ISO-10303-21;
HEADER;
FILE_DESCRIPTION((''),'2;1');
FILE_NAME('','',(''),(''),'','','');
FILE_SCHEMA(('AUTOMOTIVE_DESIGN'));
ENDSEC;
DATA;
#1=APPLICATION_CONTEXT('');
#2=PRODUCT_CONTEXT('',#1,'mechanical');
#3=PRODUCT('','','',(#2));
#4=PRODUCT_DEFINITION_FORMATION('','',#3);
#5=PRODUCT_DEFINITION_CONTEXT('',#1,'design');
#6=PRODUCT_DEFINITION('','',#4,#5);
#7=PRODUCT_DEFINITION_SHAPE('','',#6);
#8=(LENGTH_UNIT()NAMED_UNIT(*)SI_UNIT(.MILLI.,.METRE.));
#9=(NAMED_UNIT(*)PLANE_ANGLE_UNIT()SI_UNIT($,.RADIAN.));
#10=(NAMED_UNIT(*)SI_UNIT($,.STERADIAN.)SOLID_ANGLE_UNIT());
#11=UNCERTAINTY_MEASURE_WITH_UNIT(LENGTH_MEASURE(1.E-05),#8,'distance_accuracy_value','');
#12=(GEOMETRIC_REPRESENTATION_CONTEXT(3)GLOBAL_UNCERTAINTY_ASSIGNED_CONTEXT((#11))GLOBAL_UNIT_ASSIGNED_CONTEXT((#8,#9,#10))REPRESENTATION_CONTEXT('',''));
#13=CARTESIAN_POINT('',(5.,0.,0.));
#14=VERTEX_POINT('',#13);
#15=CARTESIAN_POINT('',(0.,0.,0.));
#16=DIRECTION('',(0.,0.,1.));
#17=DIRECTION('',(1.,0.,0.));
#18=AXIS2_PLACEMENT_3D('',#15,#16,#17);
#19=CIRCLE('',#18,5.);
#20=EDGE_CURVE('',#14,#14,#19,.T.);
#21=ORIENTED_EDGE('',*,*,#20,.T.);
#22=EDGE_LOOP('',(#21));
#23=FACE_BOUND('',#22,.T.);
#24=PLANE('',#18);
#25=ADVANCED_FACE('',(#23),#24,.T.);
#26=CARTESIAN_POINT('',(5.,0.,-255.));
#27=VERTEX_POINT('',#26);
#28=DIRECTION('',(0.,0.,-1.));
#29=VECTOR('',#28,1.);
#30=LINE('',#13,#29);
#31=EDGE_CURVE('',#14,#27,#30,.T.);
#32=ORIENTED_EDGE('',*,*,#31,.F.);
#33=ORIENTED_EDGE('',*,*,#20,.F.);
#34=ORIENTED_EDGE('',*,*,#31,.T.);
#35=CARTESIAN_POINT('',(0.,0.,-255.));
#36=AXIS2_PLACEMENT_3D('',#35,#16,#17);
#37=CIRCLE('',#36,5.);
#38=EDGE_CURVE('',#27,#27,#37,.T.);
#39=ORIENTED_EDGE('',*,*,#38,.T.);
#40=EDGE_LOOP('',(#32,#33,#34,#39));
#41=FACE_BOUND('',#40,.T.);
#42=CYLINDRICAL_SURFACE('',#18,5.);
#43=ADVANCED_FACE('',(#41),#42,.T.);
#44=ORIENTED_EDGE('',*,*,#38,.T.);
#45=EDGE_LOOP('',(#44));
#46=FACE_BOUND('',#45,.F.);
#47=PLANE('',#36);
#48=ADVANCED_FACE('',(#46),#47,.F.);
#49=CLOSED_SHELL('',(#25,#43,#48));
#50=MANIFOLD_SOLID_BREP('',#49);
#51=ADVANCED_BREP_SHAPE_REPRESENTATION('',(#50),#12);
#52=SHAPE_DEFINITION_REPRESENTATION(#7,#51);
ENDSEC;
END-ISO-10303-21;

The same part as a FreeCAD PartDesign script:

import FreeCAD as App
import Part
import Sketcher
Q = App.Units.Quantity

doc = App.newDocument("Part")
params = doc.addObject("Spreadsheet::Sheet", "Params")
for row, (alias, value) in enumerate([
    ("sketch1_diameter", "10 mm"),
    ("pad1_length", "255 mm"),
], start=1):
    params.set(f"A{row}", alias)
    params.set(f"B{row}", "=" + value)
    params.setAlias(f"B{row}", alias)

body = doc.addObject("PartDesign::Body", "Body")

# Sketch on XY plane
sketch1 = body.newObject("Sketcher::SketchObject", "Sketch")
sketch1.AttachmentSupport = (doc.getObject("XY_Plane"), [""])
sketch1.MapMode = "FlatFace"
sketch1.addGeometry(Part.Circle(App.Vector(0, 0, 0), App.Vector(0, 0, 1), 5), False)
sketch1.addConstraint(Sketcher.Constraint("Coincident", 0, 3, -1, 1))
sketch1.addConstraint(Sketcher.Constraint("Diameter", 0, Q("10 mm")))
sketch1.setExpression("Constraints[1]", "Params.sketch1_diameter")
pad1 = body.newObject("PartDesign::Pad", "Pad")
pad1.Profile = sketch1
pad1.setExpression("Length", "Params.pad1_length")
pad1.Reversed = True

doc.recompute()
